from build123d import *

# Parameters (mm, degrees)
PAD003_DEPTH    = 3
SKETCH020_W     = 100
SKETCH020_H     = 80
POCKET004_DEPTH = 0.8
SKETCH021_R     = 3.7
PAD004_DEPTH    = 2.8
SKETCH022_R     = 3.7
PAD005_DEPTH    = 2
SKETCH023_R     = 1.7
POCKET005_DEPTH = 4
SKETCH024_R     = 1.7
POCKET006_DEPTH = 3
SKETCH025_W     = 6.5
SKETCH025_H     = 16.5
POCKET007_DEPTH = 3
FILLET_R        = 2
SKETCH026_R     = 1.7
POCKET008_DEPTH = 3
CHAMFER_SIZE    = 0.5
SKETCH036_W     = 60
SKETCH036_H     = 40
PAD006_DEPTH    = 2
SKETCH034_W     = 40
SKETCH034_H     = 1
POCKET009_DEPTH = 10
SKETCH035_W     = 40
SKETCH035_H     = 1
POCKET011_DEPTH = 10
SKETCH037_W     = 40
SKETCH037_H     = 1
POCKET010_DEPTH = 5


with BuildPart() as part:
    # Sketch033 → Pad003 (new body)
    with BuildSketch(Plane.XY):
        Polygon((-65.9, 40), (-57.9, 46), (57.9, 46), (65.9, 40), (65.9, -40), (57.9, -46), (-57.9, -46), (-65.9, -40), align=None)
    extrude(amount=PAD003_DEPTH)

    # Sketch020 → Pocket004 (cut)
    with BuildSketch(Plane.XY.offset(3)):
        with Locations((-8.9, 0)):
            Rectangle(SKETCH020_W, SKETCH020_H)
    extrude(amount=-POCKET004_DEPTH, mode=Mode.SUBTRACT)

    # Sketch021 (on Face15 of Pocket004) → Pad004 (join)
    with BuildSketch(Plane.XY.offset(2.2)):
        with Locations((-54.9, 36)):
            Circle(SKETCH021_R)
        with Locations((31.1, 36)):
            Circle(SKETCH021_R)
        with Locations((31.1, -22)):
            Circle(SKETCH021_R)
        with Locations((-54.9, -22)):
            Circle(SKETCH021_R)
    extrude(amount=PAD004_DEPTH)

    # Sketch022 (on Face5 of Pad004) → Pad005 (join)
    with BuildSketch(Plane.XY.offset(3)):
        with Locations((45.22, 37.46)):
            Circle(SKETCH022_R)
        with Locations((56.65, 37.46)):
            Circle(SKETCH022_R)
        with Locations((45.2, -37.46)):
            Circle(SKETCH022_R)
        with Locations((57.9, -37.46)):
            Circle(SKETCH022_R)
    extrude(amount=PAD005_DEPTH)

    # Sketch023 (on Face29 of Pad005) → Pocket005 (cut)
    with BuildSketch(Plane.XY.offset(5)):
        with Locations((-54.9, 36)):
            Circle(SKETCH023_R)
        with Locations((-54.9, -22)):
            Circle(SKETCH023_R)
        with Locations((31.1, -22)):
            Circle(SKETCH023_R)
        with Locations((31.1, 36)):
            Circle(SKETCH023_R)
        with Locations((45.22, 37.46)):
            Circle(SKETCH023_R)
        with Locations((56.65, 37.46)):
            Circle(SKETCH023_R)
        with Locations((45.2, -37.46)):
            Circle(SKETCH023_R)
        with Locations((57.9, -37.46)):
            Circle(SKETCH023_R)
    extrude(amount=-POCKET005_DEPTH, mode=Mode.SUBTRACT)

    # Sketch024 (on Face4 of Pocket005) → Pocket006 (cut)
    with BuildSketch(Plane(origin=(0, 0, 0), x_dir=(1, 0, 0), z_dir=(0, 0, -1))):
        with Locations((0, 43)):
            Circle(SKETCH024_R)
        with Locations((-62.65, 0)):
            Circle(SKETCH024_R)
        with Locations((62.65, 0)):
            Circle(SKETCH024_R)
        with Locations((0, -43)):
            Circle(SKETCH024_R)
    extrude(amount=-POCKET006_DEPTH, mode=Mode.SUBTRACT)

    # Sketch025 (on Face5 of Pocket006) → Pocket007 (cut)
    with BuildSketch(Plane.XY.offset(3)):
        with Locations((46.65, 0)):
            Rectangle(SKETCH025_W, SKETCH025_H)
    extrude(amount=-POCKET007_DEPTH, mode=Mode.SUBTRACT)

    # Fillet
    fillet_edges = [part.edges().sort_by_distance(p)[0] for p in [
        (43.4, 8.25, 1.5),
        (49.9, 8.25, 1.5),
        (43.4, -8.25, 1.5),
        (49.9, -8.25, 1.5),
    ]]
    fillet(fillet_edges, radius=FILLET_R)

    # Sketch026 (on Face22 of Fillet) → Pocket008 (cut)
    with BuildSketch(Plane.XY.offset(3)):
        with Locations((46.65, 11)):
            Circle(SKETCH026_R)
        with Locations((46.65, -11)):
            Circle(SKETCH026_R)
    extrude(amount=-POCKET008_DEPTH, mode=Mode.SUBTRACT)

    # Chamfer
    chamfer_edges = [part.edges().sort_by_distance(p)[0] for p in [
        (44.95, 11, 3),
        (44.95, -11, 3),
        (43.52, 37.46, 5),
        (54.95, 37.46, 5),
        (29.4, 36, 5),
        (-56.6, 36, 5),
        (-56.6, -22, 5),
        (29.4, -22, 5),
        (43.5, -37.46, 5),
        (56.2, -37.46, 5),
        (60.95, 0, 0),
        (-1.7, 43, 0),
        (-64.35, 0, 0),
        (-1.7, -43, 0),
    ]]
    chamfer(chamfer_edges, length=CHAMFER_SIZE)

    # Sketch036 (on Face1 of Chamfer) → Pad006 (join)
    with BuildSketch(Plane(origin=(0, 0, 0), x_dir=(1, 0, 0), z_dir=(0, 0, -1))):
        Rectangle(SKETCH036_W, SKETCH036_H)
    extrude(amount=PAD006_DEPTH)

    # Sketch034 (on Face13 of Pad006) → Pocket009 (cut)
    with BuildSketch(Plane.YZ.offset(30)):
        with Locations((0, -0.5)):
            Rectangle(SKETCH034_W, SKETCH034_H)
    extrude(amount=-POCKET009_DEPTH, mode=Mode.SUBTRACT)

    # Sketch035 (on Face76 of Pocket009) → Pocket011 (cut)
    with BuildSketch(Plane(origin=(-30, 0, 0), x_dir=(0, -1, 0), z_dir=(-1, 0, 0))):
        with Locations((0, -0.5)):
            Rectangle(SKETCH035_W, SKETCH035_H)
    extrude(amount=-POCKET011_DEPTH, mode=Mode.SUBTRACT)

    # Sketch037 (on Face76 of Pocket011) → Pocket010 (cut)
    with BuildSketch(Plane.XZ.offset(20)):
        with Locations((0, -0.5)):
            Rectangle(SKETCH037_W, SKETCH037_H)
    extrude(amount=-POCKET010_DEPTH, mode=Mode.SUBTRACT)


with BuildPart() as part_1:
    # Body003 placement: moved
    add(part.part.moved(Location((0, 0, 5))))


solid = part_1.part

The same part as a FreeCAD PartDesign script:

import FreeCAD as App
import Part
import Sketcher

V = App.Vector
Q = App.Units.Quantity


def edges_at(feature, points):
    """Names of the edges that pass closest to the given points."""
    edges = feature.Shape.Edges
    near = lambda p: min(range(len(edges)), key=lambda i: edges[i].distToShape(Part.Vertex(*p))[0])
    return sorted({f"Edge{near(p) + 1}" for p in points})

doc = App.newDocument("Part")
body = doc.addObject("PartDesign::Body", "Body")

# Sketch on XY plane
sketch1 = body.newObject("Sketcher::SketchObject", "Sketch")
sketch1.AttachmentSupport = (doc.getObject("XY_Plane"), [""])
sketch1.MapMode = "FlatFace"
sketch1.addGeometry([
    Part.LineSegment(V(-58, 46, 0), V(-66, 40, 0)),  # 0
    Part.LineSegment(V(-66, 40, 0), V(-66, -40, 0)),  # 1
    Part.LineSegment(V(-66, -40, 0), V(-58, -46, 0)),  # 2
    Part.LineSegment(V(-58, -46, 0), V(58, -46, 0)),  # 3
    Part.LineSegment(V(58, -46, 0), V(66, -40, 0)),  # 4
    Part.LineSegment(V(66, -40, 0), V(66, 40, 0)),  # 5
    Part.LineSegment(V(66, 40, 0), V(58, 46, 0)),  # 6
    Part.LineSegment(V(58, 46, 0), V(-58, 46, 0)),  # 7
], False)
sketch1.addConstraint([
    Sketcher.Constraint("Coincident", 0, 2, 1, 1),
    Sketcher.Constraint("Coincident", 1, 2, 2, 1),
    Sketcher.Constraint("Coincident", 2, 2, 3, 1),
    Sketcher.Constraint("Coincident", 3, 2, 4, 1),
    Sketcher.Constraint("Coincident", 4, 2, 5, 1),
    Sketcher.Constraint("Coincident", 5, 2, 6, 1),
    Sketcher.Constraint("Coincident", 6, 2, 7, 1),
    Sketcher.Constraint("Coincident", 7, 2, 0, 1),
    Sketcher.Constraint("Vertical", 1),
    Sketcher.Constraint("Horizontal", 3),
    Sketcher.Constraint("Vertical", 5),
    Sketcher.Constraint("Horizontal", 7),
    Sketcher.Constraint("Symmetric", 0, 2, 4, 2, -1, 1),
    Sketcher.Constraint("Symmetric", 2, 2, 6, 2, -1, 1),
    Sketcher.Constraint("Parallel", 0, 4),
    Sketcher.Constraint("Parallel", 2, 6),
    Sketcher.Constraint("Horizontal", 1, 2, 4, 2),
    Sketcher.Constraint("Vertical", 3, 2, 6, 2),
    Sketcher.Constraint("DistanceY", 1, 2, 1, 1, Q("80 mm")),
    Sketcher.Constraint("Distance", 0, Q("10 mm")),
    Sketcher.Constraint("DistanceX", 3, 1, 3, 2, Q("115.8 mm")),
    Sketcher.Constraint("DistanceY", 2, 2, -1, 1, Q("46 mm")),
])
pad1 = body.newObject("PartDesign::Pad", "Pad")
pad1.Profile = sketch1
pad1.Length = 3

# Sketch on XY plane
sketch2 = body.newObject("Sketcher::SketchObject", "Sketch001")
sketch2.AttachmentSupport = (doc.getObject("XY_Plane"), [""])
sketch2.MapMode = "FlatFace"
sketch2.AttachmentOffset = App.Placement(V(0, 0, 3), App.Rotation())
sketch2.addGeometry([
    Part.LineSegment(V(-59, 40, 0), V(-59, -40, 0)),
    Part.LineSegment(V(-59, -40, 0), V(41, -40, 0)),
    Part.LineSegment(V(41, -40, 0), V(41, 40, 0)),
    Part.LineSegment(V(41, 40, 0), V(-59, 40, 0)),
], False)
sketch2.addConstraint([
    Sketcher.Constraint("Coincident", 0, 2, 1, 1),
    Sketcher.Constraint("Coincident", 1, 2, 2, 1),
    Sketcher.Constraint("Coincident", 2, 2, 3, 1),
    Sketcher.Constraint("Coincident", 3, 2, 0, 1),
    Sketcher.Constraint("Vertical", 0),
    Sketcher.Constraint("Horizontal", 1),
    Sketcher.Constraint("Vertical", 2),
    Sketcher.Constraint("Horizontal", 3),
    Sketcher.Constraint("DistanceX", 1, 1, 1, 2, Q("100 mm")),
    Sketcher.Constraint("DistanceY", 0, 2, 0, 1, Q("80 mm")),
    Sketcher.Constraint("DistanceY", 0, 2, -1, 1, Q("40 mm")),
    Sketcher.Constraint("DistanceX", 0, 2, -1, 1, Q("58.9 mm")),
])
pocket1 = body.newObject("PartDesign::Pocket", "Pocket")
pocket1.Profile = sketch2
pocket1.Length = 0.8

# Sketch on XY plane
sketch3 = body.newObject("Sketcher::SketchObject", "Sketch002")
sketch3.AttachmentSupport = (doc.getObject("XY_Plane"), [""])
sketch3.MapMode = "FlatFace"
sketch3.AttachmentOffset = App.Placement(V(0, 0, 2.2), App.Rotation())
sketch3.addGeometry([
    Part.Circle(V(-54.9, 36, 0), V(0, 0, 1), 3.7),
    Part.Circle(V(31.1, 36, 0), V(0, 0, 1), 3.7),
    Part.Circle(V(31.1, -22, 0), V(0, 0, 1), 3.7),
    Part.Circle(V(-54.9, -22, 0), V(0, 0, 1), 3.7),
], False)
sketch3.addConstraint([
    Sketcher.Constraint("Equal", 0, 1),
    Sketcher.Constraint("Equal", 1, 2),
    Sketcher.Constraint("Equal", 2, 3),
    Sketcher.Constraint("Horizontal", 0, 3, 1, 3),
    Sketcher.Constraint("Horizontal", 2, 3, 3, 3),
    Sketcher.Constraint("Vertical", 1, 3, 2, 3),
    Sketcher.Constraint("Vertical", 0, 3, 3, 3),
    Sketcher.Constraint("Diameter", 0, Q("7.4 mm")),
    Sketcher.Constraint("DistanceY", -1, 1, 0, 3, Q("36 mm")),
    Sketcher.Constraint("DistanceY", 2, 3, -1, 1, Q("22 mm")),
    Sketcher.Constraint("DistanceX", 0, 3, 1, 3, Q("86 mm")),
    Sketcher.Constraint("DistanceX", 0, 3, -1, 1, Q("54.9 mm")),
])
pad2 = body.newObject("PartDesign::Pad", "Pad001")
pad2.Profile = sketch3
pad2.Length = 2.8

# Sketch on XY plane
sketch4 = body.newObject("Sketcher::SketchObject", "Sketch003")
sketch4.AttachmentSupport = (doc.getObject("XY_Plane"), [""])
sketch4.MapMode = "FlatFace"
sketch4.AttachmentOffset = App.Placement(V(0, 0, 3), App.Rotation())
sketch4.addGeometry([
    Part.Circle(V(45.2, 37.5, 0), V(0, 0, 1), 3.7),
    Part.Circle(V(56.6, 37.5, 0), V(0, 0, 1), 3.7),
    Part.Circle(V(45.2, -37.5, 0), V(0, 0, 1), 3.7),
    Part.Circle(V(57.9, -37.5, 0), V(0, 0, 1), 3.7),
], False)
sketch4.addConstraint([
    Sketcher.Constraint("Equal", 0, 1),
    Sketcher.Constraint("Equal", 1, 2),
    Sketcher.Constraint("Equal", 2, 3),
    Sketcher.Constraint("Horizontal", 0, 3, 1, 3),
    Sketcher.Constraint("Horizontal", 2, 3, 3, 3),
    Sketcher.Constraint("Diameter", 0, Q("7.4 mm")),
    Sketcher.Constraint("DistanceX", -1, 1, 2, 3, Q("45.2 mm")),
    Sketcher.Constraint("DistanceX", -1, 1, 3, 3, Q("57.9 mm")),
    Sketcher.Constraint("DistanceX", -1, 1, 0, 3, Q("45.22 mm")),
    Sketcher.Constraint("DistanceY", -1, 1, 0, 3, Q("37.46 mm")),
    Sketcher.Constraint("DistanceX", -1, 1, 1, 3, Q("56.65 mm")),
    Sketcher.Constraint("DistanceY", 2, 3, -1, 1, Q("37.46 mm")),
])
pad3 = body.newObject("PartDesign::Pad", "Pad002")
pad3.Profile = sketch4
pad3.Length = 2

# Sketch on XY plane
sketch5 = body.newObject("Sketcher::SketchObject", "Sketch004")
sketch5.AttachmentSupport = (doc.getObject("XY_Plane"), [""])
sketch5.MapMode = "FlatFace"
sketch5.AttachmentOffset = App.Placement(V(0, 0, 5), App.Rotation())
sketch5.addGeometry([
    Part.Circle(V(-54.9, 36, 0), V(0, 0, 1), 1.7),  # 0
    Part.Circle(V(-54.9, -22, 0), V(0, 0, 1), 1.7),  # 1
    Part.Circle(V(31.1, -22, 0), V(0, 0, 1), 1.7),  # 2
    Part.Circle(V(31.1, 36, 0), V(0, 0, 1), 1.7),  # 3
    Part.Circle(V(45.2, 37.5, 0), V(0, 0, 1), 1.7),  # 4
    Part.Circle(V(56.6, 37.5, 0), V(0, 0, 1), 1.7),  # 5
    Part.Circle(V(45.2, -37.5, 0), V(0, 0, 1), 1.7),  # 6
    Part.Circle(V(57.9, -37.5, 0), V(0, 0, 1), 1.7),  # 7
], False)
sketch5.addConstraint([
    Sketcher.Constraint("Equal", 0, 1),
    Sketcher.Constraint("Equal", 1, 2),
    Sketcher.Constraint("Equal", 2, 3),
    Sketcher.Constraint("Equal", 3, 4),
    Sketcher.Constraint("Equal", 4, 5),
    Sketcher.Constraint("Equal", 5, 6),
    Sketcher.Constraint("Equal", 6, 7),
    Sketcher.Constraint("Horizontal", 1, 3, 2, 3),
    Sketcher.Constraint("Horizontal", 0, 3, 3, 3),
    Sketcher.Constraint("Horizontal", 4, 3, 5, 3),
    Sketcher.Constraint("Horizontal", 6, 3, 7, 3),
    Sketcher.Constraint("Vertical", 0, 3, 1, 3),
    Sketcher.Constraint("Vertical", 2, 3, 3, 3),
    Sketcher.Constraint("Diameter", 0, Q("3.4 mm")),
    Sketcher.Constraint("DistanceY", -1, 1, 0, 3, Q("36 mm")),
    Sketcher.Constraint("DistanceY", 1, 3, -1, 1, Q("22 mm")),
    Sketcher.Constraint("DistanceX", 1, 3, 2, 3, Q("86 mm")),
    Sketcher.Constraint("DistanceX", 0, 3, -1, 1, Q("54.9 mm")),
    Sketcher.Constraint("DistanceX", -1, 1, 6, 3, Q("45.2 mm")),
    Sketcher.Constraint("DistanceX", -1, 1, 7, 3, Q("57.9 mm")),
    Sketcher.Constraint("DistanceX", -1, 1, 4, 3, Q("45.22 mm")),
    Sketcher.Constraint("DistanceY", -1, 1, 4, 3, Q("37.46 mm")),
    Sketcher.Constraint("DistanceX", -1, 1, 5, 3, Q("56.65 mm")),
    Sketcher.Constraint("DistanceY", 6, 3, -1, 1, Q("37.46 mm")),
])
pocket2 = body.newObject("PartDesign::Pocket", "Pocket001")
pocket2.Profile = sketch5
pocket2.Length = 4

# Sketch on XY plane
sketch6 = body.newObject("Sketcher::SketchObject", "Sketch005")
sketch6.AttachmentSupport = (doc.getObject("XY_Plane"), [""])
sketch6.MapMode = "FlatFace"
sketch6.addGeometry([
    Part.Circle(V(0, -43, 0), V(0, 0, 1), 1.7),
    Part.Circle(V(-62.6, 0, 0), V(0, 0, 1), 1.7),
    Part.Circle(V(62.6, 0, 0), V(0, 0, 1), 1.7),
    Part.Circle(V(0, 43, 0), V(0, 0, 1), 1.7),
], False)
sketch6.addConstraint([
    Sketcher.Constraint("Equal", 0, 1),
    Sketcher.Constraint("Equal", 1, 2),
    Sketcher.Constraint("Equal", 2, 3),
    Sketcher.Constraint("Symmetric", 1, 3, 2, 3, -1, 1),
    Sketcher.Constraint("Symmetric", 0, 3, 3, 3, -1, 1),
    Sketcher.Constraint("PointOnObject", 0, 3, -2),
    Sketcher.Constraint("PointOnObject", 1, 3, -1),
    Sketcher.Constraint("Diameter", 0, Q("3.4 mm")),
    Sketcher.Constraint("DistanceY", 0, 3, -1, 1, Q("43 mm")),
    Sketcher.Constraint("DistanceX", 1, 3, 2, 3, Q("125.3 mm")),
])
pocket3 = body.newObject("PartDesign::Pocket", "Pocket002")
pocket3.Profile = sketch6
pocket3.Length = 3
pocket3.Reversed = True

# Sketch on XY plane
sketch7 = body.newObject("Sketcher::SketchObject", "Sketch006")
sketch7.AttachmentSupport = (doc.getObject("XY_Plane"), [""])
sketch7.MapMode = "FlatFace"
sketch7.AttachmentOffset = App.Placement(V(0, 0, 3), App.Rotation())
sketch7.addGeometry([
    Part.LineSegment(V(43, 8, 0), V(43, -8, 0)),
    Part.LineSegment(V(43, -8, 0), V(50, -8, 0)),
    Part.LineSegment(V(50, -8, 0), V(50, 8, 0)),
    Part.LineSegment(V(50, 8, 0), V(43, 8, 0)),
], False)
sketch7.addConstraint([
    Sketcher.Constraint("Coincident", 0, 2, 1, 1),
    Sketcher.Constraint("Coincident", 1, 2, 2, 1),
    Sketcher.Constraint("Coincident", 2, 2, 3, 1),
    Sketcher.Constraint("Coincident", 3, 2, 0, 1),
    Sketcher.Constraint("Vertical", 0),
    Sketcher.Constraint("Horizontal", 1),
    Sketcher.Constraint("Vertical", 2),
    Sketcher.Constraint("Horizontal", 3),
    Sketcher.Constraint("DistanceX", 1, 1, 1, 2, Q("6.5 mm")),
    Sketcher.Constraint("DistanceY", 0, 2, 0, 1, Q("16.5 mm")),
    Sketcher.Constraint("DistanceX", -1, 1, 0, 2, Q("43.4 mm")),
    Sketcher.Constraint("DistanceY", 0, 2, -1, 1, Q("8.25 mm")),
])
pocket4 = body.newObject("PartDesign::Pocket", "Pocket003")
pocket4.Profile = sketch7
pocket4.Length = 3
doc.recompute()

fillet = body.newObject("PartDesign::Fillet", "Fillet")
fillet.Base = (pocket4, edges_at(pocket4, [
    (43.4, 8.25, 1.5),
    (49.9, 8.25, 1.5),
    (43.4, -8.25, 1.5),
    (49.9, -8.25, 1.5),
]))
fillet.Radius = 2

# Sketch on XY plane
sketch8 = body.newObject("Sketcher::SketchObject", "Sketch007")
sketch8.AttachmentSupport = (doc.getObject("XY_Plane"), [""])
sketch8.MapMode = "FlatFace"
sketch8.AttachmentOffset = App.Placement(V(0, 0, 3), App.Rotation())
sketch8.addGeometry([
    Part.Circle(V(46.6, 11, 0), V(0, 0, 1), 1.7),
    Part.Circle(V(46.6, -11, 0), V(0, 0, 1), 1.7),
], False)
sketch8.addConstraint([
    Sketcher.Constraint("Equal", 0, 1),
    Sketcher.Constraint("Symmetric", 0, 3, 1, 3, -1),
    Sketcher.Constraint("Diameter", 0, Q("3.4 mm")),
    Sketcher.Constraint("DistanceY", -1, 1, 0, 3, Q("11 mm")),
    Sketcher.Constraint("DistanceX", -1, 1, 0, 3, Q("46.65 mm")),
])
pocket5 = body.newObject("PartDesign::Pocket", "Pocket004")
pocket5.Profile = sketch8
pocket5.Length = 3
doc.recompute()

chamfer = body.newObject("PartDesign::Chamfer", "Chamfer")
chamfer.Base = (pocket5, edges_at(pocket5, [
    (44.95, 11, 3),
    (44.95, -11, 3),
    (43.52, 37.46, 5),
    (54.95, 37.46, 5),
    (29.4, 36, 5),
    (-56.6, 36, 5),
    (-56.6, -22, 5),
    (29.4, -22, 5),
    (43.5, -37.46, 5),
    (56.2, -37.46, 5),
    (60.95, 0, 0),
    (-1.7, 43, 0),
    (-64.35, 0, 0),
    (-1.7, -43, 0),
]))
chamfer.Size = 0.5

# Sketch on XY plane
sketch9 = body.newObject("Sketcher::SketchObject", "Sketch008")
sketch9.AttachmentSupport = (doc.getObject("XY_Plane"), [""])
sketch9.MapMode = "FlatFace"
sketch9.addGeometry([
    Part.LineSegment(V(-30, -20, 0), V(-30, 20, 0)),
    Part.LineSegment(V(-30, 20, 0), V(30, 20, 0)),
    Part.LineSegment(V(30, 20, 0), V(30, -20, 0)),
    Part.LineSegment(V(30, -20, 0), V(-30, -20, 0)),
], False)
sketch9.addConstraint([
    Sketcher.Constraint("Coincident", 0, 2, 1, 1),
    Sketcher.Constraint("Coincident", 1, 2, 2, 1),
    Sketcher.Constraint("Coincident", 2, 2, 3, 1),
    Sketcher.Constraint("Coincident", 3, 2, 0, 1),
    Sketcher.Constraint("Vertical", 0),
    Sketcher.Constraint("Horizontal", 1),
    Sketcher.Constraint("Vertical", 2),
    Sketcher.Constraint("Horizontal", 3),
    Sketcher.Constraint("Symmetric", 0, 2, 2, 2, -1, 1),
    Sketcher.Constraint("DistanceX", 1, 1, 1, 2, Q("60 mm")),
    Sketcher.Constraint("DistanceY", 0, 1, 0, 2, Q("40 mm")),
])
pad4 = body.newObject("PartDesign::Pad", "Pad003")
pad4.Profile = sketch9
pad4.Length = 2
pad4.Reversed = True

# Sketch on YZ plane
sketch10 = body.newObject("Sketcher::SketchObject", "Sketch009")
sketch10.AttachmentSupport = (doc.getObject("YZ_Plane"), [""])
sketch10.MapMode = "FlatFace"
sketch10.AttachmentOffset = App.Placement(V(0, 0, 30), App.Rotation())
sketch10.addGeometry([
    Part.LineSegment(V(-20, 0, 0), V(-20, -1, 0)),
    Part.LineSegment(V(-20, -1, 0), V(20, -1, 0)),
    Part.LineSegment(V(20, -1, 0), V(20, 0, 0)),
    Part.LineSegment(V(20, 0, 0), V(-20, 0, 0)),
], False)
sketch10.addConstraint([
    Sketcher.Constraint("Coincident", 0, 2, 1, 1),
    Sketcher.Constraint("Coincident", 1, 2, 2, 1),
    Sketcher.Constraint("Coincident", 2, 2, 3, 1),
    Sketcher.Constraint("Coincident", 3, 2, 0, 1),
    Sketcher.Constraint("Vertical", 0),
    Sketcher.Constraint("Horizontal", 1),
    Sketcher.Constraint("Vertical", 2),
    Sketcher.Constraint("Horizontal", 3),
    Sketcher.Constraint("Symmetric", 2, 2, 3, 2, -1, 1),
    Sketcher.Constraint("DistanceX", 1, 1, 1, 2, Q("40 mm")),
    Sketcher.Constraint("DistanceY", 0, 2, 0, 1, Q("1 mm")),
])
pocket6 = body.newObject("PartDesign::Pocket", "Pocket005")
pocket6.Profile = sketch10
pocket6.Length = 10

# Sketch on YZ plane
sketch11 = body.newObject("Sketcher::SketchObject", "Sketch010")
sketch11.AttachmentSupport = (doc.getObject("YZ_Plane"), [""])
sketch11.MapMode = "FlatFace"
sketch11.AttachmentOffset = App.Placement(V(0, 0, -30), App.Rotation())
sketch11.addGeometry([
    Part.LineSegment(V(20, 0, 0), V(20, -1, 0)),
    Part.LineSegment(V(20, -1, 0), V(-20, -1, 0)),
    Part.LineSegment(V(-20, -1, 0), V(-20, 0, 0)),
    Part.LineSegment(V(-20, 0, 0), V(20, 0, 0)),
], False)
sketch11.addConstraint([
    Sketcher.Constraint("Coincident", 0, 2, 1, 1),
    Sketcher.Constraint("Coincident", 1, 2, 2, 1),
    Sketcher.Constraint("Coincident", 2, 2, 3, 1),
    Sketcher.Constraint("Coincident", 3, 2, 0, 1),
    Sketcher.Constraint("Vertical", 0),
    Sketcher.Constraint("Horizontal", 1),
    Sketcher.Constraint("Vertical", 2),
    Sketcher.Constraint("Horizontal", 3),
    Sketcher.Constraint("Symmetric", 2, 2, 3, 2, -1, 1),
    Sketcher.Constraint("DistanceX", 1, 2, 1, 1, Q("40 mm")),
    Sketcher.Constraint("DistanceY", 0, 2, 0, 1, Q("1 mm")),
])
pocket7 = body.newObject("PartDesign::Pocket", "Pocket006")
pocket7.Profile = sketch11
pocket7.Length = 10
pocket7.Reversed = True

# Sketch on XZ plane
sketch12 = body.newObject("Sketcher::SketchObject", "Sketch011")
sketch12.AttachmentSupport = (doc.getObject("XZ_Plane"), [""])
sketch12.MapMode = "FlatFace"
sketch12.AttachmentOffset = App.Placement(V(0, 0, 20), App.Rotation())
sketch12.addGeometry([
    Part.LineSegment(V(-20, 0, 0), V(-20, -1, 0)),
    Part.LineSegment(V(-20, -1, 0), V(20, -1, 0)),
    Part.LineSegment(V(20, -1, 0), V(20, 0, 0)),
    Part.LineSegment(V(20, 0, 0), V(-20, 0, 0)),
], False)
sketch12.addConstraint([
    Sketcher.Constraint("Coincident", 0, 2, 1, 1),
    Sketcher.Constraint("Coincident", 1, 2, 2, 1),
    Sketcher.Constraint("Coincident", 2, 2, 3, 1),
    Sketcher.Constraint("Coincident", 3, 2, 0, 1),
    Sketcher.Constraint("Vertical", 0),
    Sketcher.Constraint("Horizontal", 1),
    Sketcher.Constraint("Vertical", 2),
    Sketcher.Constraint("Horizontal", 3),
    Sketcher.Constraint("Symmetric", 2, 2, 3, 2, -1, 1),
    Sketcher.Constraint("DistanceX", 1, 1, 1, 2, Q("40 mm")),
    Sketcher.Constraint("DistanceY", 0, 2, 0, 1, Q("1 mm")),
])
pocket8 = body.newObject("PartDesign::Pocket", "Pocket007")
pocket8.Profile = sketch12
pocket8.Length = 5
body2 = doc.addObject("PartDesign::Body", "Body001")
doc.recompute()

body.Placement = App.Placement(V(0, 0, 5), App.Rotation(V(0, 0, 1), 0))
boolean = body2.newObject("PartDesign::Boolean", "Boolean")
boolean.Type = "Fuse"
boolean.addObjects([body])

doc.recompute()
